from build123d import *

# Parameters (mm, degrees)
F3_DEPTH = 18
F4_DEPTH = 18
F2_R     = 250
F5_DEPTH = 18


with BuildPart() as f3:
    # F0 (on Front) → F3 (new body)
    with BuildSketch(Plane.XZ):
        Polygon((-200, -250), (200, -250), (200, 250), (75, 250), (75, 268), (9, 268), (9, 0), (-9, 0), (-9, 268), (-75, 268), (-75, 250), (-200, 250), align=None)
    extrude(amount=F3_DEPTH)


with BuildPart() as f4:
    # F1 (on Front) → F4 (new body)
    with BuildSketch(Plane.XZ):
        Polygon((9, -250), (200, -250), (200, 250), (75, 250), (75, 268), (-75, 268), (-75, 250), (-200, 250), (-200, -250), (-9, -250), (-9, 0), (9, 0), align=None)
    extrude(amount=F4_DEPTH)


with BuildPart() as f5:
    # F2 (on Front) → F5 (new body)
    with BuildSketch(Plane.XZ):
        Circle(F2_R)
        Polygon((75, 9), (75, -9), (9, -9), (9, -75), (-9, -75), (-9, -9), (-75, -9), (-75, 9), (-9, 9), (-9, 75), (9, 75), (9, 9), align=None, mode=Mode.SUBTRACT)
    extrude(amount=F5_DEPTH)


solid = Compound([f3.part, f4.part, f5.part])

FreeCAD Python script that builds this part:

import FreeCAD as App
import Part
import Sketcher

V = App.Vector

doc = App.newDocument("Part")
body = doc.addObject("PartDesign::Body", "Body")

sketch1 = body.newObject("Sketcher::SketchObject", "Sketch")
sketch1.AttachmentSupport = (doc.getObject("XZ_Plane"), [""])
sketch1.MapMode = "FlatFace"
sketch1.addGeometry([
    Part.LineSegment(V(-200, -250, 0), V(200, -250, 0)),
    Part.LineSegment(V(200, -250, 0), V(200, 250, 0)),
    Part.LineSegment(V(200, 250, 0), V(75, 250, 0)),
    Part.LineSegment(V(75, 250, 0), V(75, 268, 0)),
    Part.LineSegment(V(75, 268, 0), V(9, 268, 0)),
    Part.LineSegment(V(9, 268, 0), V(9, 0, 0)),
    Part.LineSegment(V(9, 0, 0), V(-9, 0, 0)),
    Part.LineSegment(V(-9, 0, 0), V(-9, 268, 0)),
    Part.LineSegment(V(-9, 268, 0), V(-75, 268, 0)),
    Part.LineSegment(V(-75, 268, 0), V(-75, 250, 0)),
    Part.LineSegment(V(-75, 250, 0), V(-200, 250, 0)),
    Part.LineSegment(V(-200, 250, 0), V(-200, -250, 0)),
], False)
sketch1.addConstraint([
    Sketcher.Constraint("Coincident", 0, 2, 1, 1),
    Sketcher.Constraint("Coincident", 1, 2, 2, 1),
    Sketcher.Constraint("Coincident", 2, 2, 3, 1),
    Sketcher.Constraint("Coincident", 3, 2, 4, 1),
    Sketcher.Constraint("Coincident", 4, 2, 5, 1),
    Sketcher.Constraint("Coincident", 5, 2, 6, 1),
    Sketcher.Constraint("Coincident", 6, 2, 7, 1),
    Sketcher.Constraint("Coincident", 7, 2, 8, 1),
    Sketcher.Constraint("Coincident", 8, 2, 9, 1),
    Sketcher.Constraint("Coincident", 9, 2, 10, 1),
    Sketcher.Constraint("Coincident", 10, 2, 11, 1),
    Sketcher.Constraint("Coincident", 11, 2, 0, 1),
    Sketcher.Constraint("Horizontal", 0),
    Sketcher.Constraint("Vertical", 1),
    Sketcher.Constraint("Horizontal", 2),
    Sketcher.Constraint("Vertical", 3),
    Sketcher.Constraint("Horizontal", 4),
    Sketcher.Constraint("Vertical", 5),
    Sketcher.Constraint("Horizontal", 6),
    Sketcher.Constraint("Vertical", 7),
    Sketcher.Constraint("Horizontal", 8),
    Sketcher.Constraint("Vertical", 9),
    Sketcher.Constraint("Horizontal", 10),
    Sketcher.Constraint("Vertical", 11),
    Sketcher.Constraint("Symmetric", 5, 2, 6, 2, -1, 1),
    Sketcher.Constraint("Symmetric", 0, 2, 10, 2, -1, 1),
    Sketcher.Constraint("Symmetric", 3, 2, 8, 2, -2),
    Sketcher.Constraint("Horizontal", 2, 2, 9, 2),
    Sketcher.Constraint("Equal", 6, 3),
    Sketcher.Constraint("DistanceX", 0, 1, 0, 2, 400.0),
    Sketcher.Constraint("DistanceX", 2, 2, 2, 1, 125.0),
    Sketcher.Constraint("DistanceX", 4, 2, 4, 1, 66.0),
    Sketcher.Constraint("DistanceY", 1, 1, 1, 2, 500.0),
])
pad1 = body.newObject("PartDesign::Pad", "Pad")
pad1.Profile = sketch1
pad1.Length = 18
body2 = doc.addObject("PartDesign::Body", "Body001")

sketch2 = body2.newObject("Sketcher::SketchObject", "Sketch001")
sketch2.AttachmentSupport = (doc.getObject("XZ_Plane001"), [""])
sketch2.MapMode = "FlatFace"
sketch2.addGeometry([
    Part.LineSegment(V(9, -250, 0), V(200, -250, 0)),
    Part.LineSegment(V(200, -250, 0), V(200, 250, 0)),
    Part.LineSegment(V(200, 250, 0), V(75, 250, 0)),
    Part.LineSegment(V(75, 250, 0), V(75, 268, 0)),
    Part.LineSegment(V(75, 268, 0), V(-75, 268, 0)),
    Part.LineSegment(V(-75, 268, 0), V(-75, 250, 0)),
    Part.LineSegment(V(-75, 250, 0), V(-200, 250, 0)),
    Part.LineSegment(V(-200, 250, 0), V(-200, -250, 0)),
    Part.LineSegment(V(-200, -250, 0), V(-9, -250, 0)),
    Part.LineSegment(V(-9, -250, 0), V(-9, 0, 0)),
    Part.LineSegment(V(-9, 0, 0), V(9, 0, 0)),
    Part.LineSegment(V(9, 0, 0), V(9, -250, 0)),
], False)
sketch2.addConstraint([
    Sketcher.Constraint("Coincident", 0, 2, 1, 1),
    Sketcher.Constraint("Coincident", 1, 2, 2, 1),
    Sketcher.Constraint("Coincident", 2, 2, 3, 1),
    Sketcher.Constraint("Coincident", 3, 2, 4, 1),
    Sketcher.Constraint("Coincident", 4, 2, 5, 1),
    Sketcher.Constraint("Coincident", 5, 2, 6, 1),
    Sketcher.Constraint("Coincident", 6, 2, 7, 1),
    Sketcher.Constraint("Coincident", 7, 2, 8, 1),
    Sketcher.Constraint("Coincident", 8, 2, 9, 1),
    Sketcher.Constraint("Coincident", 9, 2, 10, 1),
    Sketcher.Constraint("Coincident", 10, 2, 11, 1),
    Sketcher.Constraint("Coincident", 11, 2, 0, 1),
    Sketcher.Constraint("Horizontal", 0),
    Sketcher.Constraint("Vertical", 1),
    Sketcher.Constraint("Horizontal", 2),
    Sketcher.Constraint("Vertical", 3),
    Sketcher.Constraint("Horizontal", 4),
    Sketcher.Constraint("Vertical", 5),
    Sketcher.Constraint("Horizontal", 6),
    Sketcher.Constraint("Vertical", 7),
    Sketcher.Constraint("Horizontal", 8),
    Sketcher.Constraint("Vertical", 9),
    Sketcher.Constraint("Horizontal", 10),
    Sketcher.Constraint("Vertical", 11),
    Sketcher.Constraint("Symmetric", 0, 2, 6, 2, -1, 1),
    Sketcher.Constraint("Symmetric", 9, 2, 10, 2, -1, 1),
    Sketcher.Constraint("Symmetric", 2, 2, 5, 2, -2),
    Sketcher.Constraint("Horizontal", 0, 2, 7, 2),
    Sketcher.Constraint("Equal", 10, 3),
    Sketcher.Constraint("DistanceX", 0, 1, 0, 2, 191.0),
    Sketcher.Constraint("DistanceX", 2, 2, 2, 1, 125.0),
    Sketcher.Constraint("DistanceX", 4, 2, 4, 1, 150.0),
    Sketcher.Constraint("DistanceY", 1, 1, 1, 2, 500.0),
])
pad2 = body2.newObject("PartDesign::Pad", "Pad001")
pad2.Profile = sketch2
pad2.Length = 18
body3 = doc.addObject("PartDesign::Body", "Body002")

sketch3 = body3.newObject("Sketcher::SketchObject", "Sketch002")
sketch3.AttachmentSupport = (doc.getObject("XZ_Plane002"), [""])
sketch3.MapMode = "FlatFace"
sketch3.addGeometry([
    Part.Circle(V(0, 0, 0), V(0, 0, 1), 250),
    Part.LineSegment(V(9, 9, 0), V(75, 9, 0)),
    Part.LineSegment(V(75, 9, 0), V(75, -9, 0)),
    Part.LineSegment(V(75, -9, 0), V(9, -9, 0)),
    Part.LineSegment(V(9, -9, 0), V(9, -75, 0)),
    Part.LineSegment(V(9, -75, 0), V(-9, -75, 0)),
    Part.LineSegment(V(-9, -75, 0), V(-9, -9, 0)),
    Part.LineSegment(V(-9, -9, 0), V(-75, -9, 0)),
    Part.LineSegment(V(-75, -9, 0), V(-75, 9, 0)),
    Part.LineSegment(V(-75, 9, 0), V(-9, 9, 0)),
    Part.LineSegment(V(-9, 9, 0), V(-9, 75, 0)),
    Part.LineSegment(V(-9, 75, 0), V(9, 75, 0)),
    Part.LineSegment(V(9, 75, 0), V(9, 9, 0)),
], False)
sketch3.addConstraint([
    Sketcher.Constraint("Coincident", 1, 2, 2, 1),
    Sketcher.Constraint("Coincident", 2, 2, 3, 1),
    Sketcher.Constraint("Coincident", 3, 2, 4, 1),
    Sketcher.Constraint("Coincident", 4, 2, 5, 1),
    Sketcher.Constraint("Coincident", 5, 2, 6, 1),
    Sketcher.Constraint("Coincident", 6, 2, 7, 1),
    Sketcher.Constraint("Coincident", 7, 2, 8, 1),
    Sketcher.Constraint("Coincident", 8, 2, 9, 1),
    Sketcher.Constraint("Coincident", 9, 2, 10, 1),
    Sketcher.Constraint("Coincident", 10, 2, 11, 1),
    Sketcher.Constraint("Coincident", 11, 2, 12, 1),
    Sketcher.Constraint("Coincident", 12, 2, 1, 1),
    Sketcher.Constraint("Horizontal", 1),
    Sketcher.Constraint("Vertical", 2),
    Sketcher.Constraint("Horizontal", 3),
    Sketcher.Constraint("Vertical", 4),
    Sketcher.Constraint("Horizontal", 5),
    Sketcher.Constraint("Vertical", 6),
    Sketcher.Constraint("Horizontal", 7),
    Sketcher.Constraint("Vertical", 8),
    Sketcher.Constraint("Horizontal", 9),
    Sketcher.Constraint("Vertical", 10),
    Sketcher.Constraint("Horizontal", 11),
    Sketcher.Constraint("Vertical", 12),
    Sketcher.Constraint("Coincident", 0, 3, -1, 1),
    Sketcher.Constraint("Symmetric", 1, 2, 7, 2, -1, 1),
    Sketcher.Constraint("Symmetric", 3, 2, 9, 2, -1, 1),
    Sketcher.Constraint("Symmetric", 5, 2, 11, 2, -1, 1),
    Sketcher.Constraint("Symmetric", 3, 2, 6, 2, -2),
    Sketcher.Constraint("Equal", 11, 2),
    Sketcher.Constraint("Equal", 9, 4),
    Sketcher.Constraint("Diameter", 0, 500.0),
    Sketcher.Constraint("DistanceX", 1, 1, 1, 2, 66.0),
    Sketcher.Constraint("DistanceX", 5, 2, 5, 1, 18.0),
])
pad3 = body3.newObject("PartDesign::Pad", "Pad002")
pad3.Profile = sketch3
pad3.Length = 18

doc.recompute()
